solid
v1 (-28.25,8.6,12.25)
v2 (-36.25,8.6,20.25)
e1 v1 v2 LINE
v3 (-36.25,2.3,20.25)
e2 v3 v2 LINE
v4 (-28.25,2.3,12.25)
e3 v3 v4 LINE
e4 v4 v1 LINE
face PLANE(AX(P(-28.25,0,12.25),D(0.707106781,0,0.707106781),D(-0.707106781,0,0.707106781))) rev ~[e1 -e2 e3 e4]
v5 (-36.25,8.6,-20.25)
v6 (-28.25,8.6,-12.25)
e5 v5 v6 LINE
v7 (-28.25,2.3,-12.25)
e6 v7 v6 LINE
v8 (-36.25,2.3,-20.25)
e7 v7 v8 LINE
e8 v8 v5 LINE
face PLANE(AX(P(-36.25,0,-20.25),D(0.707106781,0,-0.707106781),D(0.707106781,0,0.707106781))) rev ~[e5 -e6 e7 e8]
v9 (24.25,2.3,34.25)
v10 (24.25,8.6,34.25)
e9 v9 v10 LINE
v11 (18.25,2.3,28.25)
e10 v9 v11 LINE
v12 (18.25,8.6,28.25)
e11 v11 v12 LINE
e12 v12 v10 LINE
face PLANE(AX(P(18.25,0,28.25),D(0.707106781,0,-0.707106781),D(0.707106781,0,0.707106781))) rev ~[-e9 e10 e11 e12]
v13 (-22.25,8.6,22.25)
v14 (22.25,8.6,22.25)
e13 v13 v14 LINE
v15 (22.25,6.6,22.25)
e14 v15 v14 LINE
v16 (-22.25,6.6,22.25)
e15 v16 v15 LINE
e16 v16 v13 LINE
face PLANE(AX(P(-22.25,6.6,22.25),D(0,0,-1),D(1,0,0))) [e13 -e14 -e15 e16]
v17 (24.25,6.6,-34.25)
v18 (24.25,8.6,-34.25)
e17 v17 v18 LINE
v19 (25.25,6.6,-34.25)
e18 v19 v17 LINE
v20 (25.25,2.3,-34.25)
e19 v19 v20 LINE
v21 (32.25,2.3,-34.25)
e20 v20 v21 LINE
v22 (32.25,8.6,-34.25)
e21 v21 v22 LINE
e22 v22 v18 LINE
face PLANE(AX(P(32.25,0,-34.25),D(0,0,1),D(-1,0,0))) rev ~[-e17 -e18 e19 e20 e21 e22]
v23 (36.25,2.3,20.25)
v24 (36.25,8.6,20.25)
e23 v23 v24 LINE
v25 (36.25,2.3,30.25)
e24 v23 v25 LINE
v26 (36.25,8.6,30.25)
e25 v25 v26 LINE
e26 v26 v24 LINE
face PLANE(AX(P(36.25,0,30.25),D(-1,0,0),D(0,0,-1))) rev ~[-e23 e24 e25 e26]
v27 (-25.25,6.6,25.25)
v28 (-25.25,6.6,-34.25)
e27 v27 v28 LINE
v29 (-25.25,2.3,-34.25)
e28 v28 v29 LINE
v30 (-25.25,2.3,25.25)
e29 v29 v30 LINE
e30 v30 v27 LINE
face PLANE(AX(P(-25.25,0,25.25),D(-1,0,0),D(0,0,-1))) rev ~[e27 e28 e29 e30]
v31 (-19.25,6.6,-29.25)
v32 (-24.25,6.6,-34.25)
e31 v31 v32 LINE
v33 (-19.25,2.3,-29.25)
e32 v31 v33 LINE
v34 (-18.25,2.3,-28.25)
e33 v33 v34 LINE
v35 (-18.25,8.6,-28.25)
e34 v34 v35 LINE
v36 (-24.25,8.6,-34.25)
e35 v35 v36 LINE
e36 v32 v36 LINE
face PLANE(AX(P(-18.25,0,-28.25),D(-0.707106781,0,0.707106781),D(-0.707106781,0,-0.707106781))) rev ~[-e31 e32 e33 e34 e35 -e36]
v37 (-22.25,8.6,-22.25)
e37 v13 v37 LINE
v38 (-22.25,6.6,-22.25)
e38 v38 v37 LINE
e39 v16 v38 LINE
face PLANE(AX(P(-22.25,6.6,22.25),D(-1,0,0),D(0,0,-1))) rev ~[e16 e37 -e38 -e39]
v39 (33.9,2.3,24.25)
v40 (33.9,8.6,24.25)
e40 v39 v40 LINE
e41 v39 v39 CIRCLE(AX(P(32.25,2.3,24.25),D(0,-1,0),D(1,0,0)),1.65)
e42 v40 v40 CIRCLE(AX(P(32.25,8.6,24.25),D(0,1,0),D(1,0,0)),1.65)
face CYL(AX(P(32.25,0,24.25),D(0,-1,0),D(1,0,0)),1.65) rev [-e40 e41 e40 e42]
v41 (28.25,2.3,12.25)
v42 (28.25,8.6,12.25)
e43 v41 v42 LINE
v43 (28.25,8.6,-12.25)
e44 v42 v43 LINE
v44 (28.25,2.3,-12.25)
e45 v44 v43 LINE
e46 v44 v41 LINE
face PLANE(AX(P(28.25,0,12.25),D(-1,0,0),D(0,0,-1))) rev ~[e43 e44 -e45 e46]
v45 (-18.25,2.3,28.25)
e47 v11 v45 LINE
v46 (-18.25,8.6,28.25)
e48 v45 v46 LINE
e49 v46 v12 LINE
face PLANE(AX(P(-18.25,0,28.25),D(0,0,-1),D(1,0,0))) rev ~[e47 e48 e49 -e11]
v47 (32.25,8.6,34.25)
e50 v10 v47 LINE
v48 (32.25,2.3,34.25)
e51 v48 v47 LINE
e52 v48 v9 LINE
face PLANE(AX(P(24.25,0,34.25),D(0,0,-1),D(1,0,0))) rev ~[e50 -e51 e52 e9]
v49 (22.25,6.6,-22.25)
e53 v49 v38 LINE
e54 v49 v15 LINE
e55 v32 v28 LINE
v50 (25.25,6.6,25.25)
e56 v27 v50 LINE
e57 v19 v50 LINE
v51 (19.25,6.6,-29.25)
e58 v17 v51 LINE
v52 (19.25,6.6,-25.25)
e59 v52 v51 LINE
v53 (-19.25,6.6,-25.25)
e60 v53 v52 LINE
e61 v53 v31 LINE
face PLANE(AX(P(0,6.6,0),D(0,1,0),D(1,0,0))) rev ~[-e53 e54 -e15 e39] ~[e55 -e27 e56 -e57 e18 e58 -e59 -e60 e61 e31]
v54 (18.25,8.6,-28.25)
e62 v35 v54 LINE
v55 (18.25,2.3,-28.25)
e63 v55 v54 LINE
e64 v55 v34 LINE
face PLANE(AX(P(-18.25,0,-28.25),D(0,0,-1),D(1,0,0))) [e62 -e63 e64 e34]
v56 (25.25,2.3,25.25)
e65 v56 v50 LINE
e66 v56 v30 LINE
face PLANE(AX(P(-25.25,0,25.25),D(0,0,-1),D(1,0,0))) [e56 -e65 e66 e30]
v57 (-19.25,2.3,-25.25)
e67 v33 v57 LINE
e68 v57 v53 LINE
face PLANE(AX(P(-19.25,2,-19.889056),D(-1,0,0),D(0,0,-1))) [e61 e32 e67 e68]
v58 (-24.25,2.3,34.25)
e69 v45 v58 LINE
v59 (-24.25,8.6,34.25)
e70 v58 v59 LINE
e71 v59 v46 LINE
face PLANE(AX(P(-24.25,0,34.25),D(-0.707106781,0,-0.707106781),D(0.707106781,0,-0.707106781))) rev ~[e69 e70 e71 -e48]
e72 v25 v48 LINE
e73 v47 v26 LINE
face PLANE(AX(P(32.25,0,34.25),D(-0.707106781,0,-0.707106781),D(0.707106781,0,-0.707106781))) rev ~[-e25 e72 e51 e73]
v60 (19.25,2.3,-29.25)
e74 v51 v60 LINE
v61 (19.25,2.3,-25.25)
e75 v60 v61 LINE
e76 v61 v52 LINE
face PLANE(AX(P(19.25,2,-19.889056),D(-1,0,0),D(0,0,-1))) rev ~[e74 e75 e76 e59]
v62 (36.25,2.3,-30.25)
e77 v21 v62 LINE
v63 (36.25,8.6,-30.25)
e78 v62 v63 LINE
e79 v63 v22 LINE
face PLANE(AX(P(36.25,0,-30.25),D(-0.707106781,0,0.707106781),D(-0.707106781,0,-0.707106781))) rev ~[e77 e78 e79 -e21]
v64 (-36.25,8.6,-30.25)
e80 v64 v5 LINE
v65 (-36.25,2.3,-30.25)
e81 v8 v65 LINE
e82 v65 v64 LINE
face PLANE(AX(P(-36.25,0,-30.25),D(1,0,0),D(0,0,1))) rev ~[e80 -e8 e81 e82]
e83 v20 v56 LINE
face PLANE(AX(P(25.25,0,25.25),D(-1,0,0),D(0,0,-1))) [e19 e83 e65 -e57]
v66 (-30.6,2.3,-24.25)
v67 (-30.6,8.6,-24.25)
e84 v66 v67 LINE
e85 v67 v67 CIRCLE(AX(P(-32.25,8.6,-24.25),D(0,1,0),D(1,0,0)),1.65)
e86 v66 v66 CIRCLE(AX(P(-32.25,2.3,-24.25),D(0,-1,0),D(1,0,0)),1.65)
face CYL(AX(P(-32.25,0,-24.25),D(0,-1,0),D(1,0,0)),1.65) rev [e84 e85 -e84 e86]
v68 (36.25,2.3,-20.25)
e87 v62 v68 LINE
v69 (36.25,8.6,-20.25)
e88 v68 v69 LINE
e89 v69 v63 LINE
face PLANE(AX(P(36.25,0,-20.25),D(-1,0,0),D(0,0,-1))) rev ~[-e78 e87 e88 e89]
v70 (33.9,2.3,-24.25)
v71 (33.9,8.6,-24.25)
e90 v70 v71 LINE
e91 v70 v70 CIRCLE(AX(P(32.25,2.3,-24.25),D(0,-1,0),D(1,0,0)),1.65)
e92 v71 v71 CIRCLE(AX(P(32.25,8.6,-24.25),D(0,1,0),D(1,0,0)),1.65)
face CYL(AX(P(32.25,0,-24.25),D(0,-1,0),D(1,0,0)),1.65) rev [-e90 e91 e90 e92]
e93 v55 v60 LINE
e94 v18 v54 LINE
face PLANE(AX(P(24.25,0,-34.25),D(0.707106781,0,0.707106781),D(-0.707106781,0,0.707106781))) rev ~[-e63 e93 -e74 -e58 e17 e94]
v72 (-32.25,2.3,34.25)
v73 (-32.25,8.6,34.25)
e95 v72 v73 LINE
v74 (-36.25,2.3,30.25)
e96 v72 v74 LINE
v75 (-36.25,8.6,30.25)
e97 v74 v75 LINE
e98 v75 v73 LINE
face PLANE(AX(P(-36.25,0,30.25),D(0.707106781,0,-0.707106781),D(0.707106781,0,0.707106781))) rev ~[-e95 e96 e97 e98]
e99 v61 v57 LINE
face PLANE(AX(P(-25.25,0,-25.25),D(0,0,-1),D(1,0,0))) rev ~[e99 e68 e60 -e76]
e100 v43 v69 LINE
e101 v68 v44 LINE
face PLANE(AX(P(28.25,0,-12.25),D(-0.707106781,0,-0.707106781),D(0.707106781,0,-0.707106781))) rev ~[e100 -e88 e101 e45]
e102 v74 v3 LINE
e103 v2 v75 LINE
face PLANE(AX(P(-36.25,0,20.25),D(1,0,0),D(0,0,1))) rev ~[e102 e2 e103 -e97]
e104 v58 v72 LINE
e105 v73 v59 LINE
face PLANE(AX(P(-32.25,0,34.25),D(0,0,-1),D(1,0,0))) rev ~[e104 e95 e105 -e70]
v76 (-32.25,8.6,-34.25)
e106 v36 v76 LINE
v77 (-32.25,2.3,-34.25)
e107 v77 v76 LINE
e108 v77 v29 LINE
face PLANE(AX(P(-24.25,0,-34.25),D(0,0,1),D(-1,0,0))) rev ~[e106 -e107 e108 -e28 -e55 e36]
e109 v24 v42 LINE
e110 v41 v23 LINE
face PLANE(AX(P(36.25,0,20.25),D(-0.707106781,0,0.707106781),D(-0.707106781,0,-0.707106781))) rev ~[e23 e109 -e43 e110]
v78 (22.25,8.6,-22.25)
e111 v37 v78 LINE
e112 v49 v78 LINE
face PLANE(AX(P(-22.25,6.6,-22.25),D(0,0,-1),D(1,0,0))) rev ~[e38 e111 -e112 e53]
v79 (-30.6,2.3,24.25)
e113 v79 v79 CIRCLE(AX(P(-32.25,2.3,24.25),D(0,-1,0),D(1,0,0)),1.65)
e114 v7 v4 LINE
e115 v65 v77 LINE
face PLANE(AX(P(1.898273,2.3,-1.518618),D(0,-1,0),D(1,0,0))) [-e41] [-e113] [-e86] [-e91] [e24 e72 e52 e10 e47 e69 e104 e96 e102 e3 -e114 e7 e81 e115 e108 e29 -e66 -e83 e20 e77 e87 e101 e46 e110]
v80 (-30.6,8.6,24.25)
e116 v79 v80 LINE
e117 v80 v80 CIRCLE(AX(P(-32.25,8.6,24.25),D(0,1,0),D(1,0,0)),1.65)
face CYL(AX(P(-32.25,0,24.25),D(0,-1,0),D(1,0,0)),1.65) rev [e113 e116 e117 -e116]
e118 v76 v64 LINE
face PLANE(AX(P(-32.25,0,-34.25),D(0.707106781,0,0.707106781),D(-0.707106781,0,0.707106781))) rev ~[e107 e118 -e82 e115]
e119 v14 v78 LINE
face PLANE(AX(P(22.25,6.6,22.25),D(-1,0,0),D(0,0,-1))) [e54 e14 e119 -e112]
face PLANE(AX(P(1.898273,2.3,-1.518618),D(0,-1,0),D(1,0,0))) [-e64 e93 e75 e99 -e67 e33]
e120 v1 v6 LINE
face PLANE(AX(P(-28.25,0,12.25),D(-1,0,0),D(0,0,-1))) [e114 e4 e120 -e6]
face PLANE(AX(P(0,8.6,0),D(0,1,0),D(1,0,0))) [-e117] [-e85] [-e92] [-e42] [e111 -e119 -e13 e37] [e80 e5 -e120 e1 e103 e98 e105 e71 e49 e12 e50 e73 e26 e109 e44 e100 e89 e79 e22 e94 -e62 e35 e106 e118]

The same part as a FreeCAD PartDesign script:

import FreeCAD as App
import Part
import Sketcher

V = App.Vector
Q = App.Units.Quantity


def add_polygon(sketch, points):
    """Adds a closed chain of lines whose ends are joined by coincident constraints."""
    first, n = sketch.GeometryCount, len(points)
    for a, b in zip(points, points[1:] + points[:1]):
        sketch.addGeometry(Part.LineSegment(App.Vector(*a, 0), App.Vector(*b, 0)), False)
    for i in range(n):
        sketch.addConstraint(Sketcher.Constraint("Coincident", first + i, 2, first + (i + 1) % n, 1))

doc = App.newDocument("Part")
body = doc.addObject("PartDesign::Body", "Body")

sketch1 = body.newObject("Sketcher::SketchObject", "Sketch")
sketch1.AttachmentSupport = (doc.getObject("XZ_Plane"), [""])
sketch1.MapMode = "FlatFace"
add_polygon(sketch1, [(-28.25, -12.25), (-28.25, 12.25), (-36.25, 20.25), (-36.25, 30.25), (-32.25, 34.25), (-24.25, 34.25), (-18.25, 28.25), (18.25, 28.25), (24.25, 34.25), (32.25, 34.25), (36.25, 30.25), (36.25, 20.25), (28.25, 12.25), (28.25, -12.25), (36.25, -20.25), (36.25, -30.25), (32.25, -34.25), (24.25, -34.25), (18.25, -28.25), (-18.25, -28.25), (-24.25, -34.25), (-32.25, -34.25), (-36.25, -30.25), (-36.25, -20.25)])
sketch1.addGeometry(Part.Circle(V(-32.25, 24.25, 0), V(0, 0, 1), 1.65), False)
add_polygon(sketch1, [(25.25, 25.25), (-25.25, 25.25), (-25.25, -25.25), (25.25, -25.25)])
sketch1.addGeometry(Part.Circle(V(32.25, 24.25, 0), V(0, 0, 1), 1.65), False)
sketch1.addGeometry(Part.Circle(V(-32.25, -24.25, 0), V(0, 0, 1), 1.65), False)
sketch1.addGeometry(Part.Circle(V(32.25, -24.25, 0), V(0, 0, 1), 1.65), False)
sketch1.addConstraint(Sketcher.Constraint("Vertical", 0))
sketch1.addConstraint(Sketcher.Constraint("Vertical", 2))
sketch1.addConstraint(Sketcher.Constraint("Horizontal", 4))
sketch1.addConstraint(Sketcher.Constraint("Horizontal", 6))
sketch1.addConstraint(Sketcher.Constraint("Horizontal", 8))
sketch1.addConstraint(Sketcher.Constraint("Vertical", 10))
sketch1.addConstraint(Sketcher.Constraint("Vertical", 12))
sketch1.addConstraint(Sketcher.Constraint("Vertical", 14))
sketch1.addConstraint(Sketcher.Constraint("Horizontal", 16))
sketch1.addConstraint(Sketcher.Constraint("Horizontal", 18))
sketch1.addConstraint(Sketcher.Constraint("Horizontal", 20))
sketch1.addConstraint(Sketcher.Constraint("Vertical", 22))
sketch1.addConstraint(Sketcher.Constraint("Horizontal", 25))
sketch1.addConstraint(Sketcher.Constraint("Vertical", 26))
sketch1.addConstraint(Sketcher.Constraint("Horizontal", 27))
sketch1.addConstraint(Sketcher.Constraint("Vertical", 28))
sketch1.addConstraint(Sketcher.Constraint("Equal", 24, 29))
sketch1.addConstraint(Sketcher.Constraint("Equal", 29, 30))
sketch1.addConstraint(Sketcher.Constraint("Equal", 30, 31))
sketch1.addConstraint(Sketcher.Constraint("Symmetric", 29, 3, 30, 3, -1, 1))
sketch1.addConstraint(Sketcher.Constraint("Symmetric", 24, 3, 31, 3, -1, 1))
sketch1.addConstraint(Sketcher.Constraint("Symmetric", 0, 2, 12, 2, -1, 1))
sketch1.addConstraint(Sketcher.Constraint("Symmetric", 1, 2, 13, 2, -1, 1))
sketch1.addConstraint(Sketcher.Constraint("Symmetric", 3, 2, 15, 2, -1, 1))
sketch1.addConstraint(Sketcher.Constraint("Symmetric", 5, 2, 17, 2, -1, 1))
sketch1.addConstraint(Sketcher.Constraint("Symmetric", 7, 2, 19, 2, -1, 1))
sketch1.addConstraint(Sketcher.Constraint("Symmetric", 9, 2, 21, 2, -1, 1))
sketch1.addConstraint(Sketcher.Constraint("Symmetric", 25, 2, 27, 2, -1, 1))
sketch1.addConstraint(Sketcher.Constraint("Symmetric", 24, 3, 29, 3, -2))
sketch1.addConstraint(Sketcher.Constraint("Symmetric", 4, 2, 7, 2, -2))
sketch1.addConstraint(Sketcher.Constraint("Symmetric", 2, 2, 9, 2, -2))
sketch1.addConstraint(Sketcher.Constraint("Perpendicular", 1, 3))
sketch1.addConstraint(Sketcher.Constraint("Perpendicular", 3, 5))
sketch1.addConstraint(Sketcher.Constraint("Perpendicular", 5, 7))
sketch1.addConstraint(Sketcher.Constraint("Perpendicular", 7, 9))
sketch1.addConstraint(Sketcher.Constraint("Perpendicular", 9, 11))
sketch1.addConstraint(Sketcher.Constraint("Perpendicular", 13, 15))
sketch1.addConstraint(Sketcher.Constraint("Perpendicular", 15, 17))
sketch1.addConstraint(Sketcher.Constraint("Perpendicular", 17, 19))
sketch1.addConstraint(Sketcher.Constraint("Perpendicular", 19, 21))
sketch1.addConstraint(Sketcher.Constraint("Perpendicular", 21, 23))
sketch1.addConstraint(Sketcher.Constraint("Horizontal", 1, 2, 10, 2))
sketch1.addConstraint(Sketcher.Constraint("Horizontal", 0, 2, 11, 2))
sketch1.addConstraint(Sketcher.Constraint("Horizontal", 13, 2, 22, 2))
sketch1.addConstraint(Sketcher.Constraint("Vertical", 30, 3, 3, 2))
sketch1.addConstraint(Sketcher.Constraint("Equal", 27, 26))
sketch1.addConstraint(Sketcher.Constraint("Diameter", 24, Q("3.3 mm")))
sketch1.addConstraint(Sketcher.Constraint("DistanceX", 4, 1, 4, 2, Q("8 mm")))
sketch1.addConstraint(Sketcher.Constraint("DistanceY", 2, 1, 2, 2, Q("10 mm")))
sketch1.addConstraint(Sketcher.Constraint("DistanceX", 6, 1, 6, 2, Q("36.5 mm")))
sketch1.addConstraint(Sketcher.Constraint("DistanceX", 25, 2, 25, 1, Q("50.5 mm")))
sketch1.addConstraint(Sketcher.Constraint("DistanceY", 0, 1, 0, 2, Q("24.5 mm")))
sketch1.addConstraint(Sketcher.Constraint("DistanceX", 24, 3, 0, 2, Q("4 mm")))
sketch1.addConstraint(Sketcher.Constraint("DistanceY", 0, 2, 24, 3, Q("12 mm")))
sketch1.addConstraint(Sketcher.Constraint("DistanceX", 1, 2, 24, 3, Q("4 mm")))
sketch1.addConstraint(Sketcher.Constraint("DistanceX", 4, 2, 5, 2, Q("6 mm")))
pad1 = body.newObject("PartDesign::Pad", "Pad")
pad1.Profile = sketch1
pad1.Length = 8.6
pad1.Reversed = True

sketch2 = body.newObject("Sketcher::SketchObject", "Sketch001")
sketch2.AttachmentSupport = (doc.getObject("XZ_Plane"), [""])
sketch2.MapMode = "FlatFace"
add_polygon(sketch2, [(-25.25, -25.25), (-25.25, 25.25), (25.25, 25.25), (25.25, -25.25)])
add_polygon(sketch2, [(22.25, 22.25), (-22.25, 22.25), (-22.25, -22.25), (22.25, -22.25)])
sketch2.addConstraint(Sketcher.Constraint("Vertical", 0))
sketch2.addConstraint(Sketcher.Constraint("Horizontal", 1))
sketch2.addConstraint(Sketcher.Constraint("Vertical", 2))
sketch2.addConstraint(Sketcher.Constraint("Horizontal", 3))
sketch2.addConstraint(Sketcher.Constraint("Horizontal", 4))
sketch2.addConstraint(Sketcher.Constraint("Vertical", 5))
sketch2.addConstraint(Sketcher.Constraint("Horizontal", 6))
sketch2.addConstraint(Sketcher.Constraint("Vertical", 7))
sketch2.addConstraint(Sketcher.Constraint("Symmetric", 0, 2, 2, 2, -1, 1))
sketch2.addConstraint(Sketcher.Constraint("Symmetric", 4, 2, 6, 2, -1, 1))
sketch2.addConstraint(Sketcher.Constraint("Equal", 3, 0))
sketch2.addConstraint(Sketcher.Constraint("Equal", 6, 5))
sketch2.addConstraint(Sketcher.Constraint("DistanceX", 1, 1, 1, 2, Q("50.5 mm")))
sketch2.addConstraint(Sketcher.Constraint("DistanceX", 4, 2, 4, 1, Q("44.5 mm")))
pad2 = body.newObject("PartDesign::Pad", "Pad001")
pad2.Profile = sketch2
pad2.Length = 2
pad2.Reversed = True

sketch3 = body.newObject("Sketcher::SketchObject", "Sketch002")
sketch3.AttachmentSupport = (doc.getObject("XZ_Plane"), [""])
sketch3.MapMode = "FlatFace"
sketch3.AttachmentOffset = App.Placement(V(0, 0, -6.6), App.Rotation())
add_polygon(sketch3, [(-25.25, -25.25), (-25.25, 25.25), (25.25, 25.25), (25.25, -25.25)])
add_polygon(sketch3, [(22.25, 22.25), (-22.25, 22.25), (-22.25, -22.25), (22.25, -22.25)])
sketch3.addConstraint(Sketcher.Constraint("Vertical", 0))
sketch3.addConstraint(Sketcher.Constraint("Horizontal", 1))
sketch3.addConstraint(Sketcher.Constraint("Vertical", 2))
sketch3.addConstraint(Sketcher.Constraint("Horizontal", 3))
sketch3.addConstraint(Sketcher.Constraint("Horizontal", 4))
sketch3.addConstraint(Sketcher.Constraint("Vertical", 5))
sketch3.addConstraint(Sketcher.Constraint("Horizontal", 6))
sketch3.addConstraint(Sketcher.Constraint("Vertical", 7))
sketch3.addConstraint(Sketcher.Constraint("Symmetric", 0, 2, 2, 2, -1, 1))
sketch3.addConstraint(Sketcher.Constraint("Symmetric", 4, 2, 6, 2, -1, 1))
sketch3.addConstraint(Sketcher.Constraint("Equal", 3, 0))
sketch3.addConstraint(Sketcher.Constraint("Equal", 6, 5))
sketch3.addConstraint(Sketcher.Constraint("DistanceX", 1, 1, 1, 2, Q("50.5 mm")))
sketch3.addConstraint(Sketcher.Constraint("DistanceX", 4, 2, 4, 1, Q("44.5 mm")))
pad3 = body.newObject("PartDesign::Pad", "Pad002")
pad3.Profile = sketch3
pad3.Length = 2
pad3.Reversed = True

sketch4 = body.newObject("Sketcher::SketchObject", "Sketch003")
sketch4.AttachmentSupport = (doc.getObject("XZ_Plane"), [""])
sketch4.MapMode = "FlatFace"
sketch4.AttachmentOffset = App.Placement(V(0, 0, -2), App.Rotation())
add_polygon(sketch4, [(-25.25, -37.850511), (-25.25, -19.889056), (-19.25, -19.889056), (-19.25, -37.850511)])
add_polygon(sketch4, [(19.25, -37.850511), (19.25, -19.889056), (25.25, -19.889056), (25.25, -37.850511)])
sketch4.addConstraint(Sketcher.Constraint("Vertical", 0))
sketch4.addConstraint(Sketcher.Constraint("Horizontal", 1))
sketch4.addConstraint(Sketcher.Constraint("Vertical", 2))
sketch4.addConstraint(Sketcher.Constraint("Horizontal", 3))
sketch4.addConstraint(Sketcher.Constraint("Vertical", 4))
sketch4.addConstraint(Sketcher.Constraint("Horizontal", 5))
sketch4.addConstraint(Sketcher.Constraint("Vertical", 6))
sketch4.addConstraint(Sketcher.Constraint("Horizontal", 7))
sketch4.addConstraint(Sketcher.Constraint("Symmetric", 1, 2, 4, 2, -2))
sketch4.addConstraint(Sketcher.Constraint("Symmetric", 3, 2, 6, 2, -2))
sketch4.addConstraint(Sketcher.Constraint("DistanceX", 1, 1, 1, 2, Q("6 mm")))
sketch4.addConstraint(Sketcher.Constraint("DistanceX", 1, 2, 4, 2, Q("38.5 mm")))
sketch4.addConstraint(Sketcher.Constraint("DistanceY", 0, 1, 0, 2, Q("17.961455 mm")))
sketch4.addConstraint(Sketcher.Constraint("DistanceY", 2, 2, -1, 1, Q("37.850511 mm")))
pocket1 = body.newObject("PartDesign::Pocket", "Pocket")
pocket1.Profile = sketch4
pocket1.Length = 4.6

sketch5 = body.newObject("Sketcher::SketchObject", "Sketch004")
sketch5.AttachmentSupport = (doc.getObject("XZ_Plane"), [""])
sketch5.MapMode = "FlatFace"
add_polygon(sketch5, [(-41.761997, 39.560001), (-41.761997, -42.597237), (45.558542, -42.597237), (45.558542, 39.560001)])
sketch5.addConstraint(Sketcher.Constraint("Vertical", 0))
sketch5.addConstraint(Sketcher.Constraint("Horizontal", 1))
sketch5.addConstraint(Sketcher.Constraint("Vertical", 2))
sketch5.addConstraint(Sketcher.Constraint("Horizontal", 3))
sketch5.addConstraint(Sketcher.Constraint("DistanceY", -1, 1, 2, 2, Q("39.560001 mm")))
sketch5.addConstraint(Sketcher.Constraint("DistanceX", 1, 1, 1, 2, Q("87.320539 mm")))
sketch5.addConstraint(Sketcher.Constraint("DistanceY", 0, 2, 0, 1, Q("82.157237 mm")))
sketch5.addConstraint(Sketcher.Constraint("DistanceX", 0, 2, -1, 1, Q("41.761997 mm")))
pocket2 = body.newObject("PartDesign::Pocket", "Pocket001")
pocket2.Profile = sketch5
pocket2.Length = 2.3

doc.recompute()
